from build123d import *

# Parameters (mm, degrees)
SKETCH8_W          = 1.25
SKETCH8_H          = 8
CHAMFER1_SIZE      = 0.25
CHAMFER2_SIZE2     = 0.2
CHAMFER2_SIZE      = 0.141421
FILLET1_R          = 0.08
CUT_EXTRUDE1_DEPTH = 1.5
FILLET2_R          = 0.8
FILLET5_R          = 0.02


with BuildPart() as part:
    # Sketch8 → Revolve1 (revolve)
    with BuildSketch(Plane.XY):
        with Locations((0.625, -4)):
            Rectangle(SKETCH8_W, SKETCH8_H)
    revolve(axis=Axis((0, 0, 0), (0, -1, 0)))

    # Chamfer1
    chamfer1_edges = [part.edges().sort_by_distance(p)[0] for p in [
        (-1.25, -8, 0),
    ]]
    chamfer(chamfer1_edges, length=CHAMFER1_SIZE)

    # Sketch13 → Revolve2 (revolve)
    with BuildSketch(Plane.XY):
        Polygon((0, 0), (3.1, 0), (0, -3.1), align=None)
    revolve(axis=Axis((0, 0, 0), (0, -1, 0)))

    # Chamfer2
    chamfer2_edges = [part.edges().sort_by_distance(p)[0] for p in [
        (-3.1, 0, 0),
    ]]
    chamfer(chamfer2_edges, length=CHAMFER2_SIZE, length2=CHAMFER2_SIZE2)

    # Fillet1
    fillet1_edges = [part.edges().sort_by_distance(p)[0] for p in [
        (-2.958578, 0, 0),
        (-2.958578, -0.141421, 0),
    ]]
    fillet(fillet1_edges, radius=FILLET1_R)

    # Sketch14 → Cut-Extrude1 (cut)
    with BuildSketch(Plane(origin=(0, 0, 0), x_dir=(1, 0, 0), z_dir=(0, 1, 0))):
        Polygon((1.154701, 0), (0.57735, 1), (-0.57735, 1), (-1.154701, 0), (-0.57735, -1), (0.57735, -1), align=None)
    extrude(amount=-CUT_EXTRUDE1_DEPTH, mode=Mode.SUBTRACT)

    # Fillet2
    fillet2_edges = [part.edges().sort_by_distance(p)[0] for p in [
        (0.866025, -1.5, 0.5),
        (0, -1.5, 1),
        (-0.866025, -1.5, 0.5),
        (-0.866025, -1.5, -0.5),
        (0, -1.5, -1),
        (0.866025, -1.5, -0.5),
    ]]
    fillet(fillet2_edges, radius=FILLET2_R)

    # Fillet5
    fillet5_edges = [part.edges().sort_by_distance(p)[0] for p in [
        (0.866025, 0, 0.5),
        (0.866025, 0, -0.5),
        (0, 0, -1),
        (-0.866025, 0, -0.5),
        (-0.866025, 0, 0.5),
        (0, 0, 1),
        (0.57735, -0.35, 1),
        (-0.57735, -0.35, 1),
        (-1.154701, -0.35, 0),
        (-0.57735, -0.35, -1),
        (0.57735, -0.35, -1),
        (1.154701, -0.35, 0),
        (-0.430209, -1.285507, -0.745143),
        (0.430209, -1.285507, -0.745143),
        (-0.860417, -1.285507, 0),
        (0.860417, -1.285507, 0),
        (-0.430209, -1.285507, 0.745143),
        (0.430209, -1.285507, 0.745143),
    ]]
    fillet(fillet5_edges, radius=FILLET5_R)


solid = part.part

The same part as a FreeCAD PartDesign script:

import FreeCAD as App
import Part
import Sketcher
from FreeCAD import Vector
Q = App.Units.Quantity


def edges_at(feature, points):
    """Names of the edges that pass closest to the given points."""
    edges = feature.Shape.Edges
    near = lambda p: min(range(len(edges)), key=lambda i: edges[i].distToShape(Part.Vertex(*p))[0])
    return sorted({f"Edge{near(p) + 1}" for p in points})


def add_polygon(sketch, points):
    """Adds a closed chain of lines whose ends are joined by coincident constraints."""
    first, n = sketch.GeometryCount, len(points)
    for a, b in zip(points, points[1:] + points[:1]):
        sketch.addGeometry(Part.LineSegment(App.Vector(*a, 0), App.Vector(*b, 0)), False)
    for i in range(n):
        sketch.addConstraint(Sketcher.Constraint("Coincident", first + i, 2, first + (i + 1) % n, 1))

doc = App.newDocument("Part")
body = doc.addObject("PartDesign::Body", "Body")

# Sketch on XY plane
sketch1 = doc.addObject("Sketcher::SketchObject", "Sketch")
body.addObject(sketch1)
sketch1.AttachmentSupport = (doc.XY_Plane, [""])
sketch1.MapMode = "FlatFace"
add_polygon(sketch1, [(0, 0), (0, -8), (1.2, -8), (1.2, 0)])  # lines 0-3
sketch1.addConstraint([
    Sketcher.Constraint("Vertical", 0),
    Sketcher.Constraint("Horizontal", 1),
    Sketcher.Constraint("Vertical", 2),
    Sketcher.Constraint("Horizontal", 3),
    Sketcher.Constraint("Coincident", 3, 2, -1, 1),
    Sketcher.Constraint("DistanceY", 0, 2, 0, 1, Q("8 mm")),
    Sketcher.Constraint("DistanceX", 1, 1, 1, 2, Q("1.25 mm")),
])
revolution = doc.addObject("PartDesign::Revolution", "Revolution")
body.addObject(revolution)
revolution.Profile = sketch1
revolution.ReferenceAxis = (sketch1, ["V_Axis"])
revolution.Angle = 360
doc.recompute()

chamfer = doc.addObject("PartDesign::Chamfer", "Chamfer")
body.addObject(chamfer)
chamfer.Base = (revolution, edges_at(revolution, [(-1.25, -8, 0)]))
chamfer.Size = 0.25

# Sketch on XY plane
sketch2 = doc.addObject("Sketcher::SketchObject", "Sketch001")
body.addObject(sketch2)
sketch2.AttachmentSupport = (doc.XY_Plane, [""])
sketch2.MapMode = "FlatFace"
add_polygon(sketch2, [(3.1, 0), (0, 0), (0, -3.1)])  # lines 0-2
sketch2.addConstraint([
    Sketcher.Constraint("Horizontal", 0),
    Sketcher.Constraint("Vertical", 1),
    Sketcher.Constraint("Coincident", 0, 2, -1, 1),
    Sketcher.Constraint("Equal", 0, 1),
    Sketcher.Constraint("DistanceX", 0, 2, 0, 1, Q("3.1 mm")),
])
revolution2 = doc.addObject("PartDesign::Revolution", "Revolution001")
body.addObject(revolution2)
revolution2.Profile = sketch2
revolution2.ReferenceAxis = (sketch2, ["V_Axis"])
revolution2.Angle = 360
doc.recompute()

chamfer2 = doc.addObject("PartDesign::Chamfer", "Chamfer001")
body.addObject(chamfer2)
chamfer2.Base = (revolution2, edges_at(revolution2, [(-3.1, 0, 0)]))
chamfer2.ChamferType = "Two distances"
chamfer2.Size = 0.141421
chamfer2.Size2 = 0.2
chamfer2.FlipDirection = True
doc.recompute()

fillet = doc.addObject("PartDesign::Fillet", "Fillet")
body.addObject(fillet)
fillet.Base = (chamfer2, edges_at(chamfer2, [(-2.959, 0, 0), (-2.959, -0.141, 0)]))
fillet.Radius = 0.08

# Sketch on XZ plane
sketch3 = doc.addObject("Sketcher::SketchObject", "Sketch002")
body.addObject(sketch3)
sketch3.AttachmentSupport = (doc.XZ_Plane, [""])
sketch3.MapMode = "FlatFace"
add_polygon(sketch3, [(1.2, 0), (0.6, -1), (-0.6, -1), (-1.2, 0), (-0.6, 1), (0.6, 1)])  # lines 0-5
sketch3.addConstraint([
    Sketcher.Constraint("Horizontal", 1),
    Sketcher.Constraint("Horizontal", 4),
    Sketcher.Constraint("Symmetric", 0, 2, 3, 2, -1, 1),
    Sketcher.Constraint("Symmetric", 2, 2, 5, 2, -1, 1),
    Sketcher.Constraint("PointOnObject", 2, 2, -1),
    Sketcher.Constraint("Parallel", 2, 5),
    Sketcher.Constraint("Vertical", 1, 2, 3, 2),
    Sketcher.Constraint("DistanceY", 0, 2, -1, 1, Q("1 mm")),
    Sketcher.Constraint("DistanceX", 1, 2, 1, 1, Q("1.1547 mm")),
    Sketcher.Constraint("Distance", 0, Q("1.154701 mm")),
])
pocket1 = doc.addObject("PartDesign::Pocket", "Pocket")
body.addObject(pocket1)
pocket1.Profile = sketch3
pocket1.Length = 1.5
pocket1.Reversed = True
doc.recompute()

fillet2 = doc.addObject("PartDesign::Fillet", "Fillet001")
body.addObject(fillet2)
fillet2.Base = (pocket1, edges_at(pocket1, [
    (0.866, -1.5, 0.5),
    (0, -1.5, 1),
    (-0.866, -1.5, 0.5),
    (-0.866, -1.5, -0.5),
    (0, -1.5, -1),
    (0.866, -1.5, -0.5),
]))
fillet2.Radius = 0.8
doc.recompute()

fillet3 = doc.addObject("PartDesign::Fillet", "Fillet002")
body.addObject(fillet3)
fillet3.Base = (fillet2, edges_at(fillet2, [
    (0.866, 0, 0.5),
    (0.866, 0, -0.5),
    (0, 0, -1),
    (-0.866, 0, -0.5),
    (-0.866, 0, 0.5),
    (0, 0, 1),
    (0.577, -0.35, 1),
    (-0.577, -0.35, 1),
    (-1.155, -0.35, 0),
    (-0.577, -0.35, -1),
    (0.577, -0.35, -1),
    (1.155, -0.35, 0),
    (-0.43, -1.286, -0.745),
    (0.43, -1.286, -0.745),
    (-0.86, -1.286, 0),
    (0.86, -1.286, 0),
    (-0.43, -1.286, 0.745),
    (0.43, -1.286, 0.745),
]))
fillet3.Radius = 0.02

doc.recompute()
